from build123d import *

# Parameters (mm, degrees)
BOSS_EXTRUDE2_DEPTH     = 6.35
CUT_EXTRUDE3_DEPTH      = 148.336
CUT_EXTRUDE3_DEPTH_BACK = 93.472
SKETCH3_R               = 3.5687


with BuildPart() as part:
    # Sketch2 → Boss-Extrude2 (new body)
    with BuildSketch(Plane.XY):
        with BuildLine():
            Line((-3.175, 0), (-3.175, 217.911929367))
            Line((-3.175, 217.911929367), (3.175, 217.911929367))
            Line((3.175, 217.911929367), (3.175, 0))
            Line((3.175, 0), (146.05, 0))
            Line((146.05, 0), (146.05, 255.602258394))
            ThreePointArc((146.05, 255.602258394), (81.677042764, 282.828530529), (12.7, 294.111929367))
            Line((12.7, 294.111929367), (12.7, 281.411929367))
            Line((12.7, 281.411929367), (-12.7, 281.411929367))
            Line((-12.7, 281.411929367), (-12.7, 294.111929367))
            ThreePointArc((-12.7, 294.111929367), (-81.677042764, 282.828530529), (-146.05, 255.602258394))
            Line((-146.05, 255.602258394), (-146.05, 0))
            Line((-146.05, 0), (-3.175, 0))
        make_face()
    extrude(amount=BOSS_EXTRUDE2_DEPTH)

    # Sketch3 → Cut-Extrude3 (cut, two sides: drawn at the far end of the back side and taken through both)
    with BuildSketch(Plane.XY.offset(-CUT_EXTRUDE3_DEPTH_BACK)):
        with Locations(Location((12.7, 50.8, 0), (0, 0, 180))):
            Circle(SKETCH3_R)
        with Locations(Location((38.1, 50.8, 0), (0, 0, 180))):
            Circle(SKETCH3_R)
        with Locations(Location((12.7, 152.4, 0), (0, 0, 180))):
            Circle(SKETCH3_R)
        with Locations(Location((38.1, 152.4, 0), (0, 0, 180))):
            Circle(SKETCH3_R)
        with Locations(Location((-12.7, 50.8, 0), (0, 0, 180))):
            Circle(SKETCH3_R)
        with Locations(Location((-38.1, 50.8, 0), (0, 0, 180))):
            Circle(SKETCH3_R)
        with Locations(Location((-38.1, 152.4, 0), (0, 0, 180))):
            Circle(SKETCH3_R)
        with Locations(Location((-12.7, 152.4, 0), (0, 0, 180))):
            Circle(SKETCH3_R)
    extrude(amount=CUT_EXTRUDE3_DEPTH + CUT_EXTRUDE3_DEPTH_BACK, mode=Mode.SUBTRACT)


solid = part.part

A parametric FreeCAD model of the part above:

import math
import FreeCAD as App
import Part
import Sketcher
Q = App.Units.Quantity

doc = App.newDocument("Part")
body = doc.addObject("PartDesign::Body", "Body")

sketch1 = body.newObject("Sketcher::SketchObject", "Sketch")
sketch1.AttachmentSupport = (doc.getObject("XY_Plane"), [""])
sketch1.MapMode = "FlatFace"
sketch1.addGeometry([
    Part.LineSegment(App.Vector(-3.175, 0, 0), App.Vector(-3.175, 217.911929, 0)),
    Part.LineSegment(App.Vector(-3.175, 217.911929, 0), App.Vector(3.175, 217.911929, 0)),
    Part.LineSegment(App.Vector(3.175, 217.911929, 0), App.Vector(3.175, 0, 0)),
    Part.LineSegment(App.Vector(3.175, 0, 0), App.Vector(146.05, 0, 0)),
    Part.LineSegment(App.Vector(146.05, 0, 0), App.Vector(146.05, 255.602258, 0)),
    Part.ArcOfCircle(Part.Circle(App.Vector(0, 0, 0), App.Vector(0, 0, 1), 294.386), math.radians(60.256544), math.radians(87.527456)),
    Part.LineSegment(App.Vector(12.7, 294.111929, 0), App.Vector(12.7, 281.411929, 0)),
    Part.LineSegment(App.Vector(12.7, 281.411929, 0), App.Vector(-12.7, 281.411929, 0)),
    Part.LineSegment(App.Vector(-12.7, 281.411929, 0), App.Vector(-12.7, 294.111929, 0)),
    Part.ArcOfCircle(Part.Circle(App.Vector(0, 0, 0), App.Vector(0, 0, 1), 294.386), math.radians(92.472544), math.radians(119.743456)),
    Part.LineSegment(App.Vector(-146.05, 255.602258, 0), App.Vector(-146.05, 0, 0)),
    Part.LineSegment(App.Vector(-146.05, 0, 0), App.Vector(-3.175, 0, 0)),
], False)
sketch1.addConstraint([
    Sketcher.Constraint("Coincident", 0, 2, 1, 1),
    Sketcher.Constraint("Coincident", 1, 2, 2, 1),
    Sketcher.Constraint("Coincident", 2, 2, 3, 1),
    Sketcher.Constraint("Coincident", 3, 2, 4, 1),
    Sketcher.Constraint("Coincident", 4, 2, 5, 1),
    Sketcher.Constraint("Coincident", 5, 2, 6, 1),
    Sketcher.Constraint("Coincident", 6, 2, 7, 1),
    Sketcher.Constraint("Coincident", 7, 2, 8, 1),
    Sketcher.Constraint("Coincident", 8, 2, 9, 1),
    Sketcher.Constraint("Coincident", 9, 2, 10, 1),
    Sketcher.Constraint("Coincident", 10, 2, 11, 1),
    Sketcher.Constraint("Coincident", 11, 2, 0, 1),
    Sketcher.Constraint("Vertical", 0),
    Sketcher.Constraint("Horizontal", 1),
    Sketcher.Constraint("Vertical", 2),
    Sketcher.Constraint("Horizontal", 3),
    Sketcher.Constraint("Vertical", 4),
    Sketcher.Constraint("Vertical", 6),
    Sketcher.Constraint("Horizontal", 7),
    Sketcher.Constraint("Vertical", 8),
    Sketcher.Constraint("Vertical", 10),
    Sketcher.Constraint("Horizontal", 11),
    Sketcher.Constraint("Coincident", 5, 3, -1, 1),
    Sketcher.Constraint("Coincident", 9, 3, -1, 1),
    Sketcher.Constraint("Equal", 5, 9),
    Sketcher.Constraint("Symmetric", 3, 2, 10, 2, -1, 1),
    Sketcher.Constraint("Symmetric", 2, 2, 11, 2, -2),
    Sketcher.Constraint("Horizontal", 5, 2, 8, 2),
    Sketcher.Constraint("DistanceX", 7, 2, 7, 1, Q("1 in")),
    Sketcher.Constraint("Radius", 5, Q("11.59 in")),
    Sketcher.Constraint("DistanceY", 6, 2, 6, 1, Q("0.5 in")),
    Sketcher.Constraint("DistanceY", 1, 2, 5, 2, Q("3 in")),
    Sketcher.Constraint("DistanceX", 1, 1, 1, 2, Q("0.25 in")),
    Sketcher.Constraint("DistanceX", 3, 1, 3, 2, Q("5.625 in")),
])
pad1 = body.newObject("PartDesign::Pad", "Pad")
pad1.Profile = sketch1
pad1.Length = Q("0.25 in")

sketch2 = body.newObject("Sketcher::SketchObject", "Sketch001")
sketch2.AttachmentSupport = (doc.getObject("XY_Plane"), [""])
sketch2.MapMode = "FlatFace"
sketch2.addGeometry([
    Part.Circle(App.Vector(12.7, 50.8, 0), App.Vector(0, 0, 1), 3.5687),
    Part.Circle(App.Vector(38.1, 50.8, 0), App.Vector(0, 0, 1), 3.5687),
    Part.Circle(App.Vector(12.7, 152.4, 0), App.Vector(0, 0, 1), 3.5687),
    Part.Circle(App.Vector(38.1, 152.4, 0), App.Vector(0, 0, 1), 3.5687),
    Part.Circle(App.Vector(-12.7, 50.8, 0), App.Vector(0, 0, 1), 3.5687),
    Part.Circle(App.Vector(-38.1, 50.8, 0), App.Vector(0, 0, 1), 3.5687),
    Part.Circle(App.Vector(-38.1, 152.4, 0), App.Vector(0, 0, 1), 3.5687),
    Part.Circle(App.Vector(-12.7, 152.4, 0), App.Vector(0, 0, 1), 3.5687),
], False)
sketch2.addConstraint([
    Sketcher.Constraint("Equal", 0, 1),
    Sketcher.Constraint("Equal", 1, 2),
    Sketcher.Constraint("Equal", 2, 3),
    Sketcher.Constraint("Equal", 3, 4),
    Sketcher.Constraint("Equal", 4, 5),
    Sketcher.Constraint("Equal", 5, 6),
    Sketcher.Constraint("Equal", 6, 7),
    Sketcher.Constraint("Symmetric", 0, 3, 4, 3, -2),
    Sketcher.Constraint("Symmetric", 1, 3, 5, 3, -2),
    Sketcher.Constraint("Symmetric", 3, 3, 6, 3, -2),
    Sketcher.Constraint("Symmetric", 2, 3, 7, 3, -2),
    Sketcher.Constraint("Horizontal", 0, 3, 1, 3),
    Sketcher.Constraint("Horizontal", 2, 3, 3, 3),
    Sketcher.Constraint("Vertical", 0, 3, 2, 3),
    Sketcher.Constraint("Vertical", 1, 3, 3, 3),
    Sketcher.Constraint("Diameter", 0, Q("0.281 in")),
    Sketcher.Constraint("DistanceY", -1, 1, 0, 3, Q("2 in")),
    Sketcher.Constraint("DistanceY", -1, 1, 2, 3, Q("6 in")),
    Sketcher.Constraint("DistanceX", 0, 3, 1, 3, Q("1 in")),
    Sketcher.Constraint("DistanceX", 4, 3, 0, 3, Q("1 in")),
])
pocket1 = body.newObject("PartDesign::Pocket", "Pocket")
pocket1.Profile = sketch2
pocket1.Type = "ThroughAll"
pocket1.Midplane = True

doc.recompute()
